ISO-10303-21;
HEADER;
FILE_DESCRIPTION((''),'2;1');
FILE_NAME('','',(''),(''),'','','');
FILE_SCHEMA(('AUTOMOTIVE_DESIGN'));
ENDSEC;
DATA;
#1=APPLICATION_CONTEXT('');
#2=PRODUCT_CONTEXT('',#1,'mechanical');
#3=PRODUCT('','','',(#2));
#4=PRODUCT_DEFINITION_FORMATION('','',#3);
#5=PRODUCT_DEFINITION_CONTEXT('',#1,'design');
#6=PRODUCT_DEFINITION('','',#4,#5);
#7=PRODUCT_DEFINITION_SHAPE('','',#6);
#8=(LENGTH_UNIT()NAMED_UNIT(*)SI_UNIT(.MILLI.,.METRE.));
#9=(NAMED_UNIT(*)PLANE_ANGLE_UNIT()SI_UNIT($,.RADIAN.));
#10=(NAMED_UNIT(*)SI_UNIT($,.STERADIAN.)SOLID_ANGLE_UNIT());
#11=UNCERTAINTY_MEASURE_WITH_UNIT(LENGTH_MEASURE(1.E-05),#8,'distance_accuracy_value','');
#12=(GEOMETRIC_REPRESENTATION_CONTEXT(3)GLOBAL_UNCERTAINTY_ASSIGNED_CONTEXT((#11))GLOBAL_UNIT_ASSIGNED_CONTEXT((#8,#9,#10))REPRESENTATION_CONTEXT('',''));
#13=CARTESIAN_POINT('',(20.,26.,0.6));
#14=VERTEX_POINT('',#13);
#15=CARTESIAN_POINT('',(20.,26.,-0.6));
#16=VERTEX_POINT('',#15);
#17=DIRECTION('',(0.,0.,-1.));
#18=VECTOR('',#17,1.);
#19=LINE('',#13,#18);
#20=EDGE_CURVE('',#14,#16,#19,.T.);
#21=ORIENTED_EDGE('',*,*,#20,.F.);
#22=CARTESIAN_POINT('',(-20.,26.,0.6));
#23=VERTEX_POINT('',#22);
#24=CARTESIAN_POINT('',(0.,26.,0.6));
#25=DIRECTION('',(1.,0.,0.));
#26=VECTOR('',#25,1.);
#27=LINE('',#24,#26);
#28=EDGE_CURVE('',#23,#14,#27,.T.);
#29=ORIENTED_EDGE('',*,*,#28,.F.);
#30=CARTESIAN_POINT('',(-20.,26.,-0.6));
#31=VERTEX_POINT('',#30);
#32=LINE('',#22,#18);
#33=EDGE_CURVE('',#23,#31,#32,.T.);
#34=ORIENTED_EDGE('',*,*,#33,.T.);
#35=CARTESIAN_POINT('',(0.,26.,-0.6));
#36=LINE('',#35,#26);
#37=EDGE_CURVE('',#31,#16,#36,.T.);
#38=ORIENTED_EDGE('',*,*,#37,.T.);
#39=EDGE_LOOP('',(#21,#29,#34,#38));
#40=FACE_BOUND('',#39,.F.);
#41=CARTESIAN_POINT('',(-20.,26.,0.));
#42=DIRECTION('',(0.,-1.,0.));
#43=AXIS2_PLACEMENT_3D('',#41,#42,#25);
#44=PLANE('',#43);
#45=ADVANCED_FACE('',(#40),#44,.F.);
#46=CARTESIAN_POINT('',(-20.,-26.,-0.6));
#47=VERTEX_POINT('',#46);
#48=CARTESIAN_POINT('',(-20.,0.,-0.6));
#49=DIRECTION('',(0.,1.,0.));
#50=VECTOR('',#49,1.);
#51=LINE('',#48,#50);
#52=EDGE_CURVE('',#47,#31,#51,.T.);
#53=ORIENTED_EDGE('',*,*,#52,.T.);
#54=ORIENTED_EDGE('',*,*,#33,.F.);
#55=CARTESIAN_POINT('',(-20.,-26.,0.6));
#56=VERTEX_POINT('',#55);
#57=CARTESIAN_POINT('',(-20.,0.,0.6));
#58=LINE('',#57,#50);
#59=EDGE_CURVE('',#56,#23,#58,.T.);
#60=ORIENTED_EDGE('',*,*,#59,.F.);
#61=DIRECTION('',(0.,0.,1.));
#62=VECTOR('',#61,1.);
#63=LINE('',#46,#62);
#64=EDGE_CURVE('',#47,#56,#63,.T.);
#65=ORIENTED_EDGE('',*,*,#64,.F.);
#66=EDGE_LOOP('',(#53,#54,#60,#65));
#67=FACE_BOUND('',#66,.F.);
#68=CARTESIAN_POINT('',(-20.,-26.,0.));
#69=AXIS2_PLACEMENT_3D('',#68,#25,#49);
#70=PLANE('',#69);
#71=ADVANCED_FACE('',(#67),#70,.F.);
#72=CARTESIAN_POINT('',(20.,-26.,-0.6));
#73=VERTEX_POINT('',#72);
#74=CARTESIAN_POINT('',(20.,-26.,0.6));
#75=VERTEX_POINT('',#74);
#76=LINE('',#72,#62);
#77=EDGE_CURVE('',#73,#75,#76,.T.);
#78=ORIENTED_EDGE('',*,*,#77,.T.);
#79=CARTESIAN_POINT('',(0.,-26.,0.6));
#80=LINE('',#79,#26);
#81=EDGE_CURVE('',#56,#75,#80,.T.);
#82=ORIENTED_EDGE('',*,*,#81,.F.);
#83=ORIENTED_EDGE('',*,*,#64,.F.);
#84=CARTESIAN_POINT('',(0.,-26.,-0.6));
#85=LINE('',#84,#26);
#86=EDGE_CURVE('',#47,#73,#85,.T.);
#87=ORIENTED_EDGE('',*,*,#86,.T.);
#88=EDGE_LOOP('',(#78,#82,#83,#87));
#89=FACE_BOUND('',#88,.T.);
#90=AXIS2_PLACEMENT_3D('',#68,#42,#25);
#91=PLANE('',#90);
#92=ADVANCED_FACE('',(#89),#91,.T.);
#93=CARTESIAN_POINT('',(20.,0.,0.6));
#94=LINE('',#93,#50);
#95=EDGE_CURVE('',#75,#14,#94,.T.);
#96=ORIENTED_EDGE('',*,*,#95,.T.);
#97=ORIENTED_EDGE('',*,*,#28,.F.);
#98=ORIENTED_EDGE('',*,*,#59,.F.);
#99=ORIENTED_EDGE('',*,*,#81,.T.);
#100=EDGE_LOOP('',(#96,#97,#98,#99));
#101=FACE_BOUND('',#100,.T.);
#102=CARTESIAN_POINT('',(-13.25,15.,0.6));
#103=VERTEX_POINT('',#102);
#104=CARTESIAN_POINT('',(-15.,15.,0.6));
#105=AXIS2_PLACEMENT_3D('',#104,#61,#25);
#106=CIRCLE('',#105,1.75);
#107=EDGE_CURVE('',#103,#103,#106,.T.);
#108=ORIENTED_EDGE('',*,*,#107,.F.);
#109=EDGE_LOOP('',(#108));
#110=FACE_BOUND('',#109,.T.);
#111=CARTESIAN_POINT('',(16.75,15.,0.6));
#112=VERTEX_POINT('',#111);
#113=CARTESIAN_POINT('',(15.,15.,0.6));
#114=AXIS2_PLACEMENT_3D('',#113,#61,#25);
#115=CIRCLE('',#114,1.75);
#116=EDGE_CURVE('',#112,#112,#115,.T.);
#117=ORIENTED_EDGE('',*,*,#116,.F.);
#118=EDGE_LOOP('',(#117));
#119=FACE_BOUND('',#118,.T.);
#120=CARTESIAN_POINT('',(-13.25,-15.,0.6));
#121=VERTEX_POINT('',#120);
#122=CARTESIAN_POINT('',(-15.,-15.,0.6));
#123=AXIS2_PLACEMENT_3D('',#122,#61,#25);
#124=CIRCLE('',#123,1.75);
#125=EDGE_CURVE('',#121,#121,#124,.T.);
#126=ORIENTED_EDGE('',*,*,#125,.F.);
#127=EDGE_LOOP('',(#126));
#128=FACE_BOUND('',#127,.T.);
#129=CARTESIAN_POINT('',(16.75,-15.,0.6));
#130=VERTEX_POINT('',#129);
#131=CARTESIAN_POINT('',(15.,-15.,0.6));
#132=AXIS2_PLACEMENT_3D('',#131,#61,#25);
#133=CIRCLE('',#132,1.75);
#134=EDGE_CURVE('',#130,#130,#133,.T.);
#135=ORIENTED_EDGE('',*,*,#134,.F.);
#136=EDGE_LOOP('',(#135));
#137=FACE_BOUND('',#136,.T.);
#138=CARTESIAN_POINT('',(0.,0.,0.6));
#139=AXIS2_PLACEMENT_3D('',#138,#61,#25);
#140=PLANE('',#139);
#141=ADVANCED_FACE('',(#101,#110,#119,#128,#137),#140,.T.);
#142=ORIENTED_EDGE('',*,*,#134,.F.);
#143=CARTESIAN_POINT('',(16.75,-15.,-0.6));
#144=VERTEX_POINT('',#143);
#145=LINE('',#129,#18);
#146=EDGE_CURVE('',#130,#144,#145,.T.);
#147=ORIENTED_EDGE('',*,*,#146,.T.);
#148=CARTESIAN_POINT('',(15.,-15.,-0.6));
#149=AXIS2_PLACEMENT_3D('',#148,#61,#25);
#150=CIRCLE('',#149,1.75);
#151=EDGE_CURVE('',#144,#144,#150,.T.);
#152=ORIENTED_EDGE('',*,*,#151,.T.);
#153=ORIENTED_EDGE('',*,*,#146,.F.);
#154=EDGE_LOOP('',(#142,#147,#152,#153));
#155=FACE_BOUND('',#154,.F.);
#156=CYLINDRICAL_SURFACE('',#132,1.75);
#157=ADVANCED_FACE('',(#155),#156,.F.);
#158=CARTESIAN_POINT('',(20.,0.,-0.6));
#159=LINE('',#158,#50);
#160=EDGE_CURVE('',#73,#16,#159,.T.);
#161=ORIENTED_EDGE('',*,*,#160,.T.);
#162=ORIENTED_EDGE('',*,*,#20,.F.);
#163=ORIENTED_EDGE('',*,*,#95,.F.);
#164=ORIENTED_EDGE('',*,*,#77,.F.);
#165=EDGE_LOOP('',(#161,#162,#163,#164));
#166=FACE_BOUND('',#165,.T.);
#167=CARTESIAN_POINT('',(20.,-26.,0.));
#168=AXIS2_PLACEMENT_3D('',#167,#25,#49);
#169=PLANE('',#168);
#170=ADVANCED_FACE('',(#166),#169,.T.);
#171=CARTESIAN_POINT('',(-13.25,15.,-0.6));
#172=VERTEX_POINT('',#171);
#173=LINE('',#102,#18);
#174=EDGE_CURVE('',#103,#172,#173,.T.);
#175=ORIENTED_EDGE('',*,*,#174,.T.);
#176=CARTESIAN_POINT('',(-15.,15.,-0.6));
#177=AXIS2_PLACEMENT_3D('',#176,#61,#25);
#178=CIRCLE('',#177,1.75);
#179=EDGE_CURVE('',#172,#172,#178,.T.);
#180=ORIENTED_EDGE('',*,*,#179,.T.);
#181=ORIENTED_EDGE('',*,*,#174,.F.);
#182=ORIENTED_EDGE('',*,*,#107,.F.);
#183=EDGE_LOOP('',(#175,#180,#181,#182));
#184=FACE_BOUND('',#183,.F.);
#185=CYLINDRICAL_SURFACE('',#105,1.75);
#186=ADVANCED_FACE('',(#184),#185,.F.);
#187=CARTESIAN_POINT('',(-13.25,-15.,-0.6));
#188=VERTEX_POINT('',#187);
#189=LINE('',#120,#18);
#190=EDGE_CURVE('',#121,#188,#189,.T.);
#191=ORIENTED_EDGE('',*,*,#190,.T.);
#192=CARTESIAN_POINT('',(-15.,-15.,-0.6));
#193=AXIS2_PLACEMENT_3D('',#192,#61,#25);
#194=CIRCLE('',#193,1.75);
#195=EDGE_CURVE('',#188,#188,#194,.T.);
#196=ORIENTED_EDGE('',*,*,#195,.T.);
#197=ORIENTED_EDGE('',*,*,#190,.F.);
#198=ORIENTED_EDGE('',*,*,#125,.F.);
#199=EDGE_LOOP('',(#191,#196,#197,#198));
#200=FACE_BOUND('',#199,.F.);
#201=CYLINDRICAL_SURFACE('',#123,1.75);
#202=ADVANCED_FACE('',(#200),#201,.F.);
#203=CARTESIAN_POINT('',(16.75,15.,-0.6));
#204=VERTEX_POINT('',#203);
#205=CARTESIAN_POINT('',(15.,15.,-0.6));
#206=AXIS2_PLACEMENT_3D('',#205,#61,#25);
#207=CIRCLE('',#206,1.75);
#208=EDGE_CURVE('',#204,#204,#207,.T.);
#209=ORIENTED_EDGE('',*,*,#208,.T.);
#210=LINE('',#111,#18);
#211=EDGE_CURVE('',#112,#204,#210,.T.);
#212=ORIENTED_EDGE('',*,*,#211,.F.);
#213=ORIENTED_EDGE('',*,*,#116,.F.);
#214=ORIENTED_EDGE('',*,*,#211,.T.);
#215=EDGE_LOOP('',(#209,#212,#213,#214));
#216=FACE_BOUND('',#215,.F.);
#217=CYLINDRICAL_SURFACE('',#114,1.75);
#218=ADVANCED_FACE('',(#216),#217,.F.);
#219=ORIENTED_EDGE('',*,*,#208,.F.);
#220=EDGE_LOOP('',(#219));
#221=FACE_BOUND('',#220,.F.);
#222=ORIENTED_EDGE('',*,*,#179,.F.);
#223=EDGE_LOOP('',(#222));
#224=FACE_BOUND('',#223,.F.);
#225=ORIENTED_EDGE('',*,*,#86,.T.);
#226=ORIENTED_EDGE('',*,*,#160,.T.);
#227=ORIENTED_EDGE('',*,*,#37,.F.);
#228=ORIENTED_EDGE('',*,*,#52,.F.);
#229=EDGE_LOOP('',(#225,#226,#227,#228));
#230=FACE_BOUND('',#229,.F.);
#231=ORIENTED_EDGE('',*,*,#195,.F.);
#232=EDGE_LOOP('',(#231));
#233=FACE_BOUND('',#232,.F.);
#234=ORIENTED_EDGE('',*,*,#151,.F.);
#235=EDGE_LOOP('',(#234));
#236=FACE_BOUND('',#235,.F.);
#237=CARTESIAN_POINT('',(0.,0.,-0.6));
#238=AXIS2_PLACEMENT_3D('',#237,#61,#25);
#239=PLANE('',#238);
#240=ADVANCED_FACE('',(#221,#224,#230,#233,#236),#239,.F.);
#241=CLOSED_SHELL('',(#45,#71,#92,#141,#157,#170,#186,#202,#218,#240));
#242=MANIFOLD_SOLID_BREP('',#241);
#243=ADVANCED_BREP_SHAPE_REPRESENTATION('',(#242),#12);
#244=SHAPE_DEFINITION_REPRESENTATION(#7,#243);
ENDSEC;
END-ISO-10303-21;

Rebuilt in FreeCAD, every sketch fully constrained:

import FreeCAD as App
import Part
import Sketcher

V = App.Vector
Q = App.Units.Quantity

doc = App.newDocument("Part")
body = doc.addObject("PartDesign::Body", "Body")

# Sketch on XY plane
sketch1 = body.newObject("Sketcher::SketchObject", "Sketch")
sketch1.AttachmentSupport = (doc.getObject("XY_Plane"), [""])
sketch1.MapMode = "FlatFace"
sketch1.addGeometry(Part.LineSegment(V(-20, 26, 0), V(-20, -26, 0)), False)
sketch1.addGeometry(Part.LineSegment(V(-20, -26, 0), V(20, -26, 0)), False)
sketch1.addGeometry(Part.LineSegment(V(20, -26, 0), V(20, 26, 0)), False)
sketch1.addGeometry(Part.LineSegment(V(20, 26, 0), V(-20, 26, 0)), False)
sketch1.addConstraint(Sketcher.Constraint("Coincident", 0, 2, 1, 1))
sketch1.addConstraint(Sketcher.Constraint("Coincident", 1, 2, 2, 1))
sketch1.addConstraint(Sketcher.Constraint("Coincident", 2, 2, 3, 1))
sketch1.addConstraint(Sketcher.Constraint("Coincident", 3, 2, 0, 1))
sketch1.addConstraint(Sketcher.Constraint("Vertical", 0))
sketch1.addConstraint(Sketcher.Constraint("Horizontal", 1))
sketch1.addConstraint(Sketcher.Constraint("Vertical", 2))
sketch1.addConstraint(Sketcher.Constraint("Horizontal", 3))
sketch1.addConstraint(Sketcher.Constraint("Symmetric", 0, 2, 2, 2, -1, 1))
sketch1.addConstraint(Sketcher.Constraint("DistanceX", 1, 1, 1, 2, Q("40 mm")))
sketch1.addConstraint(Sketcher.Constraint("DistanceY", 0, 2, 0, 1, Q("52 mm")))
pad1 = body.newObject("PartDesign::Pad", "Pad")
pad1.Profile = sketch1
pad1.Length = 1.2
pad1.Midplane = True

# Sketch on XY plane
sketch2 = body.newObject("Sketcher::SketchObject", "Sketch001")
sketch2.AttachmentSupport = (doc.getObject("XY_Plane"), [""])
sketch2.MapMode = "FlatFace"
sketch2.AttachmentOffset = App.Placement(V(0, 0, 0.6), App.Rotation())
sketch2.addGeometry(Part.Circle(V(-15, 15, 0), V(0, 0, 1), 1.8), False)
sketch2.addGeometry(Part.Circle(V(15, 15, 0), V(0, 0, 1), 1.8), False)
sketch2.addGeometry(Part.Circle(V(-15, -15, 0), V(0, 0, 1), 1.8), False)
sketch2.addGeometry(Part.Circle(V(15, -15, 0), V(0, 0, 1), 1.8), False)
sketch2.addConstraint(Sketcher.Constraint("Equal", 0, 1))
sketch2.addConstraint(Sketcher.Constraint("Equal", 1, 2))
sketch2.addConstraint(Sketcher.Constraint("Equal", 2, 3))
sketch2.addConstraint(Sketcher.Constraint("Symmetric", 1, 3, 2, 3, -1, 1))
sketch2.addConstraint(Sketcher.Constraint("Symmetric", 0, 3, 3, 3, -1, 1))
sketch2.addConstraint(Sketcher.Constraint("Symmetric", 0, 3, 1, 3, -2))
sketch2.addConstraint(Sketcher.Constraint("Diameter", 0, Q("3.5 mm")))
sketch2.addConstraint(Sketcher.Constraint("DistanceX", 0, 3, -1, 1, Q("15 mm")))
sketch2.addConstraint(Sketcher.Constraint("DistanceY", -1, 1, 0, 3, Q("15 mm")))
pocket1 = body.newObject("PartDesign::Pocket", "Pocket")
pocket1.Profile = sketch2
pocket1.Type = "ThroughAll"

doc.recompute()
